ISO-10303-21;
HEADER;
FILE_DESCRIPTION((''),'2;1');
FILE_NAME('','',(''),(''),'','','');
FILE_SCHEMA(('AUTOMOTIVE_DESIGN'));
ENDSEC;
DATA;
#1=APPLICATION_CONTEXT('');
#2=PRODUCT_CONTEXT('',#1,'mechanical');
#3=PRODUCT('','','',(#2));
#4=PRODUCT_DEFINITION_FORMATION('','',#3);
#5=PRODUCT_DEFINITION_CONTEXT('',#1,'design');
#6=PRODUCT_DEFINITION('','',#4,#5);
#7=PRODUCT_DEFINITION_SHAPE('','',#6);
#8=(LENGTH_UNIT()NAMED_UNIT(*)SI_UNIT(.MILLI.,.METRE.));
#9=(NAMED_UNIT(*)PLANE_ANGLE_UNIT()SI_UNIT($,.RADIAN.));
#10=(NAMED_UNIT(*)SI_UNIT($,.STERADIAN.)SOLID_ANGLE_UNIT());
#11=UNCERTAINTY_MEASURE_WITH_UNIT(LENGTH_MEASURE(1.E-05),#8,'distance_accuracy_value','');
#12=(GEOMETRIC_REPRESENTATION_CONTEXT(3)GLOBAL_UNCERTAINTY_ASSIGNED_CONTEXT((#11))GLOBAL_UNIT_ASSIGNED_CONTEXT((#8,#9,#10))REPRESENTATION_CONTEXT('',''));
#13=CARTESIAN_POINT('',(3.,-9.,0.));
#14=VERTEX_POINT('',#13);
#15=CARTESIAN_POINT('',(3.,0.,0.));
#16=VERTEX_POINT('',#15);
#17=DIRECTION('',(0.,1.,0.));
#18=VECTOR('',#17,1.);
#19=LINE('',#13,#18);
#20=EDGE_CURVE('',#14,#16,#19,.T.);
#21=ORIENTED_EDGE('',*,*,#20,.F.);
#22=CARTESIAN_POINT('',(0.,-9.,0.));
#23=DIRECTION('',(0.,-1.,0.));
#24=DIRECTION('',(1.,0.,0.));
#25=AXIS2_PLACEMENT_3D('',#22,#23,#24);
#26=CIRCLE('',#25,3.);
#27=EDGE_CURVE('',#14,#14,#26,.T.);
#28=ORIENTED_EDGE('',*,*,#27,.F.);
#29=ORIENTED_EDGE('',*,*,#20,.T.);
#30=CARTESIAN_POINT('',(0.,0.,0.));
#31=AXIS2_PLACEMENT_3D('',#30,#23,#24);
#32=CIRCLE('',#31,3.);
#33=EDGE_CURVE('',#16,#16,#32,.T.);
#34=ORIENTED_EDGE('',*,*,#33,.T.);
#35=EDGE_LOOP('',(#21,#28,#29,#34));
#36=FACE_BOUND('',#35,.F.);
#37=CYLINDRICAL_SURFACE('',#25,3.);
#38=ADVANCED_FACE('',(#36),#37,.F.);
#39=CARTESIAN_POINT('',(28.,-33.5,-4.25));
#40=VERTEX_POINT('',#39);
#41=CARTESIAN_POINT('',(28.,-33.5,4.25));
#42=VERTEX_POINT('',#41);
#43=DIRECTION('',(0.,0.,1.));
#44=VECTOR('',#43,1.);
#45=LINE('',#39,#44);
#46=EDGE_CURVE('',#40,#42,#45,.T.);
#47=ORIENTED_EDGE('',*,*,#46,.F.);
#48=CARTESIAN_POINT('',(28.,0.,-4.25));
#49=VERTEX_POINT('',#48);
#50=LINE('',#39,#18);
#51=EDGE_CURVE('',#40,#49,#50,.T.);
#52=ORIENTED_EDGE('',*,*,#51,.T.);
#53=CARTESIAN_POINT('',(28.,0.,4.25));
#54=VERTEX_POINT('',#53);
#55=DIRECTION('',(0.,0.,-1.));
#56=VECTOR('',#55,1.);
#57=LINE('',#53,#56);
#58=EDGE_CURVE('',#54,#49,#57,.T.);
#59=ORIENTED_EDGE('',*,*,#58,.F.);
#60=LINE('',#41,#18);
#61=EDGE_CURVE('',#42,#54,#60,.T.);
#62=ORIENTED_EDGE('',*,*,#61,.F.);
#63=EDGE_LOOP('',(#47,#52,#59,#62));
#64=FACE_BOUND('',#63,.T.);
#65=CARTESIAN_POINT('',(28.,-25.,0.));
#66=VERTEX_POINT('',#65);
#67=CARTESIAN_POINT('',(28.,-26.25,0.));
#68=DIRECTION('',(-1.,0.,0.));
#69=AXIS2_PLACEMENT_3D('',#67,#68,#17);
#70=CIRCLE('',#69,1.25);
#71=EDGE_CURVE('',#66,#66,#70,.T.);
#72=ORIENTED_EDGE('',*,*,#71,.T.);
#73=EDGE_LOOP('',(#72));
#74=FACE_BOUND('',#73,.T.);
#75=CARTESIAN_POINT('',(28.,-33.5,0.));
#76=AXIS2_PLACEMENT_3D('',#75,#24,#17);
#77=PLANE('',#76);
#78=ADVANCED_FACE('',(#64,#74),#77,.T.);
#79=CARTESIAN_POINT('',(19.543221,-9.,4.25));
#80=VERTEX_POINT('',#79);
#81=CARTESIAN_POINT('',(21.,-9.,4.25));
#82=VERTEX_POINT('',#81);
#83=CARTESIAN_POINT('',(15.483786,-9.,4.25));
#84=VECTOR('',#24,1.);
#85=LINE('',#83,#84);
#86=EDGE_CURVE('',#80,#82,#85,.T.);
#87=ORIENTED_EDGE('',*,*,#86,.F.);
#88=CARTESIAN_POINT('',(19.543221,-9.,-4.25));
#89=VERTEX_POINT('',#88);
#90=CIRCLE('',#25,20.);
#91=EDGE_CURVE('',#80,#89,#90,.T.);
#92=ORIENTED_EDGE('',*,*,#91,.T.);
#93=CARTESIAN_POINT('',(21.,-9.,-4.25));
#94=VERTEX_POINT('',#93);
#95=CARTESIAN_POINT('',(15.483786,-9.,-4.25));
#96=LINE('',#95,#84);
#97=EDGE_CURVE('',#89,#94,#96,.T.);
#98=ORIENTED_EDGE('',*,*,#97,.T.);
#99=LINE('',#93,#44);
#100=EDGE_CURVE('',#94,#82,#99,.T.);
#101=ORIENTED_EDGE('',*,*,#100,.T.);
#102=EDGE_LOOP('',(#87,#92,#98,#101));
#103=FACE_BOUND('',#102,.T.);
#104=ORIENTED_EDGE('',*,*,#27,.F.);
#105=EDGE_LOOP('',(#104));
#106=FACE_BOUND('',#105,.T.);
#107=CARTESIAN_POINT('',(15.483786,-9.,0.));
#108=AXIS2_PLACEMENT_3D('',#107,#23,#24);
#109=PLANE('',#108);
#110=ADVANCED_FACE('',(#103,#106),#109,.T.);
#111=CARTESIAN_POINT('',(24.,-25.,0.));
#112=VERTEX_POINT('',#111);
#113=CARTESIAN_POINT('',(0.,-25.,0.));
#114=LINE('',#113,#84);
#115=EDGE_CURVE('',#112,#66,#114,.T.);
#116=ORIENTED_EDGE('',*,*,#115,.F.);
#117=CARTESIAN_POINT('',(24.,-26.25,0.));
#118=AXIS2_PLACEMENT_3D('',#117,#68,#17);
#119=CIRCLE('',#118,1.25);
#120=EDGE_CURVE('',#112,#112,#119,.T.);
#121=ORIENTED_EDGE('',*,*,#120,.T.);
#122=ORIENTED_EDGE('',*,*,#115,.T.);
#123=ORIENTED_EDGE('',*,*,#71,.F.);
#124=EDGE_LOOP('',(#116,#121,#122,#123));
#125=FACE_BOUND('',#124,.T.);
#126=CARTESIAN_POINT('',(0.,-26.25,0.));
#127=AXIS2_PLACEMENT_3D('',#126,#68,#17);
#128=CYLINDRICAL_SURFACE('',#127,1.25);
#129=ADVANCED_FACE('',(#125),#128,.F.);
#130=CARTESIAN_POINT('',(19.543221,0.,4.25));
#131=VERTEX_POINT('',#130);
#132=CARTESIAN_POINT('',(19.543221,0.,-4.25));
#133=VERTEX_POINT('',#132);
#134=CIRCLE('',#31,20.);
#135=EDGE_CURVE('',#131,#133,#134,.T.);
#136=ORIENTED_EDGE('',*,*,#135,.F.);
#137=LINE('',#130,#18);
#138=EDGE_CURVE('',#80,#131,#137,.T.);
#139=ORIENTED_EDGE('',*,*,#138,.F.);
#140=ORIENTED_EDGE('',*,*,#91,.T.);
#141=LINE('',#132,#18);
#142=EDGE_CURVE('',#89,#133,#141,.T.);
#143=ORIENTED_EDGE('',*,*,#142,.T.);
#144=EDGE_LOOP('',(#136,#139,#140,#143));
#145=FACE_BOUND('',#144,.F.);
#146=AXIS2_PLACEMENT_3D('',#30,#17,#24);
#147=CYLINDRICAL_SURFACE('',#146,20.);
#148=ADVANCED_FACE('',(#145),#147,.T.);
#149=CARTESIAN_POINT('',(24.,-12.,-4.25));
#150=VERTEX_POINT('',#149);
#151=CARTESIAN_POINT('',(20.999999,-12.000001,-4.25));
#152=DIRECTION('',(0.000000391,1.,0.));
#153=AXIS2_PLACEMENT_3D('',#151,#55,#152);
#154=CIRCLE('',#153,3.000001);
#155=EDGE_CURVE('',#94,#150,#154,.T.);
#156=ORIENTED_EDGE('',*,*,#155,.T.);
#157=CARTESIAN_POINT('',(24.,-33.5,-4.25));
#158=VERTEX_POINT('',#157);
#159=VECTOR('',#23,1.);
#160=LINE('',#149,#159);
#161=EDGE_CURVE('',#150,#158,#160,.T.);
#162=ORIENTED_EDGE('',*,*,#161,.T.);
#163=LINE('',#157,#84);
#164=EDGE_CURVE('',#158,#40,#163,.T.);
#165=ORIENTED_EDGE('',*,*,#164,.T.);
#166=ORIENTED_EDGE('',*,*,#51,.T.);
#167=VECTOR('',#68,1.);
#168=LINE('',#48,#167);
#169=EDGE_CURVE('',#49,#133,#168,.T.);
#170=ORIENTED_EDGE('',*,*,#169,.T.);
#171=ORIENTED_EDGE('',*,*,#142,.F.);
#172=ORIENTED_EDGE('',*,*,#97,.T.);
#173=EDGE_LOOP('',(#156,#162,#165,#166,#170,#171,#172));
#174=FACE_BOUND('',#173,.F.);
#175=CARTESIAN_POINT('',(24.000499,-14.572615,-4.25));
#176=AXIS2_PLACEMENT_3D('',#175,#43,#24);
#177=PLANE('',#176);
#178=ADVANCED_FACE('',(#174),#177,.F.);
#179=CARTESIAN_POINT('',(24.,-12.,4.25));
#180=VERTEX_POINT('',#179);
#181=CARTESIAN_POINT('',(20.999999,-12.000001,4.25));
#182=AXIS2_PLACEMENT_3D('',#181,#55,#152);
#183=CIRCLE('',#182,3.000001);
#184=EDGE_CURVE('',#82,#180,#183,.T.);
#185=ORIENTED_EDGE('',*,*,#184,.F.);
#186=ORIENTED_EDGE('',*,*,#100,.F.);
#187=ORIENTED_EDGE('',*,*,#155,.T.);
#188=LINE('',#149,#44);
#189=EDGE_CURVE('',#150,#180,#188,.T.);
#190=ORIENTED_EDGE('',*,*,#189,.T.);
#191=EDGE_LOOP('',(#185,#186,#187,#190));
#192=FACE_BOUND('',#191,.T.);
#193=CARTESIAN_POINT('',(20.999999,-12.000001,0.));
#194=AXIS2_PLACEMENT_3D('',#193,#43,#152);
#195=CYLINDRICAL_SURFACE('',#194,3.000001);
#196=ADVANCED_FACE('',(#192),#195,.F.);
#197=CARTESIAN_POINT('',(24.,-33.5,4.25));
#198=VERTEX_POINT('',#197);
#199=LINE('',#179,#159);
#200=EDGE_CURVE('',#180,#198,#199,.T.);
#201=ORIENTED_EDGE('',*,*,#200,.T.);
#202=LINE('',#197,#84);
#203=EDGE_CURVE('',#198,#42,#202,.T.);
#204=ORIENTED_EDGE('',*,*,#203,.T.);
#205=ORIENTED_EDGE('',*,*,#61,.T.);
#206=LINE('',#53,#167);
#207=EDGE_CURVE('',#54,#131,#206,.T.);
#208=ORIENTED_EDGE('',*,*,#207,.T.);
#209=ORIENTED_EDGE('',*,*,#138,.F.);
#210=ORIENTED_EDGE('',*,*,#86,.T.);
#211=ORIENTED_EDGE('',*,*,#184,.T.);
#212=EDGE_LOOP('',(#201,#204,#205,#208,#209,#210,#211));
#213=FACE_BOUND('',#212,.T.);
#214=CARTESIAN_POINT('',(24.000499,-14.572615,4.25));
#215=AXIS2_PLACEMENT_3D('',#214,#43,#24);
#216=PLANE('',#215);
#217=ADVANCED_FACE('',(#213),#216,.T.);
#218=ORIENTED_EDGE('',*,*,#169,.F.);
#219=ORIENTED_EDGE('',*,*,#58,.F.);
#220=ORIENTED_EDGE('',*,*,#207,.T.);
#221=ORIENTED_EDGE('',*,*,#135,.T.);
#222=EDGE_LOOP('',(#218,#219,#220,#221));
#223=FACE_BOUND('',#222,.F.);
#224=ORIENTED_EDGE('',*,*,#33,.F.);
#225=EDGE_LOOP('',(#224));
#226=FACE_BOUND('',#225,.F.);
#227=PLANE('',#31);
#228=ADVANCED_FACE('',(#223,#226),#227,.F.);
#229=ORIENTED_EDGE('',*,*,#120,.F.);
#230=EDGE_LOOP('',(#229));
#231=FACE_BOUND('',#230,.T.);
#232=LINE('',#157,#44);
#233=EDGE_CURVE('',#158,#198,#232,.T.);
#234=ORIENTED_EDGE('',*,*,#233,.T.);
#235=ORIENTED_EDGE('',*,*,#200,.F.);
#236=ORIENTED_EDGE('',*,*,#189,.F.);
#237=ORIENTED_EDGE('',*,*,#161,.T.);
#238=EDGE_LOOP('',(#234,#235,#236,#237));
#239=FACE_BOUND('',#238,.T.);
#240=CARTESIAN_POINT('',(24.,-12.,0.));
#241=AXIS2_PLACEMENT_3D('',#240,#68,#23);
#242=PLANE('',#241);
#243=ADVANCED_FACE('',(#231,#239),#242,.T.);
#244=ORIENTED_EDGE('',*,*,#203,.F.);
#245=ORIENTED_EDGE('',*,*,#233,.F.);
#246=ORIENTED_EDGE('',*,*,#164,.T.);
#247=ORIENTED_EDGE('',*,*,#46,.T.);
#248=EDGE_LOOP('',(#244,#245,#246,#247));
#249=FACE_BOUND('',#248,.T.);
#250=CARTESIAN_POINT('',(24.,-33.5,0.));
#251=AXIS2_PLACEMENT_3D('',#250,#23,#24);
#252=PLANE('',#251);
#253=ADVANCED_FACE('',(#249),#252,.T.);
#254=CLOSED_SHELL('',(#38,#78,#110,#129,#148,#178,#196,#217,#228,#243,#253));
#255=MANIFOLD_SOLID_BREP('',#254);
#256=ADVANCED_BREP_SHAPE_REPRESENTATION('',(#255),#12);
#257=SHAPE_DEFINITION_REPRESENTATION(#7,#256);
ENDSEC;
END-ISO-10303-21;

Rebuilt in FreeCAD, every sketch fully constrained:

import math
import FreeCAD as App
import Part
import Sketcher
Q = App.Units.Quantity

doc = App.newDocument("Part")
body = doc.addObject("PartDesign::Body", "Body")

# Sketch on XZ plane
sketch1 = doc.addObject("Sketcher::SketchObject", "Sketch")
body.addObject(sketch1)
sketch1.AttachmentSupport = (doc.XZ_Plane, [""])
sketch1.MapMode = "FlatFace"
sketch1.addGeometry(Part.Circle(App.Vector(0, 0, 0), App.Vector(0, 0, 1), 20), False)
sketch1.addConstraint(Sketcher.Constraint("Coincident", 0, 3, -1, 1))
sketch1.addConstraint(Sketcher.Constraint("Diameter", 0, Q("40 mm")))
pad1 = doc.addObject("PartDesign::Pad", "Pad")
body.addObject(pad1)
pad1.Profile = sketch1
pad1.Length = 9

# Sketch on XZ plane
sketch2 = doc.addObject("Sketcher::SketchObject", "Sketch001")
body.addObject(sketch2)
sketch2.AttachmentSupport = (doc.XZ_Plane, [""])
sketch2.MapMode = "FlatFace"
sketch2.AttachmentOffset = App.Placement(App.Vector(0, 0, 9), App.Rotation())
sketch2.addGeometry(Part.Circle(App.Vector(0, 0, 0), App.Vector(0, 0, 1), 3), False)
sketch2.addConstraint(Sketcher.Constraint("Coincident", 0, 3, -1, 1))
sketch2.addConstraint(Sketcher.Constraint("Diameter", 0, Q("6 mm")))
pocket1 = doc.addObject("PartDesign::Pocket", "Pocket")
body.addObject(pocket1)
pocket1.Profile = sketch2
pocket1.Type = "ThroughAll"

# Sketch on XY plane
sketch3 = doc.addObject("Sketcher::SketchObject", "Sketch002")
body.addObject(sketch3)
sketch3.AttachmentSupport = (doc.XY_Plane, [""])
sketch3.MapMode = "FlatFace"
sketch3.addGeometry(Part.LineSegment(App.Vector(15.5, -9, 0), App.Vector(21, -9, 0)), False)
sketch3.addGeometry(Part.ArcOfCircle(Part.Circle(App.Vector(21, -12, 0), App.Vector(0, 0, 1), 3), math.radians(0), math.radians(90)), False)
sketch3.addGeometry(Part.LineSegment(App.Vector(24, -12, 0), App.Vector(24, -33.5, 0)), False)
sketch3.addGeometry(Part.LineSegment(App.Vector(24, -33.5, 0), App.Vector(28, -33.5, 0)), False)
sketch3.addGeometry(Part.LineSegment(App.Vector(28, -33.5, 0), App.Vector(28, 0, 0)), False)
sketch3.addGeometry(Part.LineSegment(App.Vector(28, 0, 0), App.Vector(15.5, 0, 0)), False)
sketch3.addGeometry(Part.LineSegment(App.Vector(15.5, 0, 0), App.Vector(15.5, -9, 0)), False)
sketch3.addConstraint(Sketcher.Constraint("Tangent", 0, 2, 1, 2))
sketch3.addConstraint(Sketcher.Constraint("Tangent", 1, 1, 2, 1))
sketch3.addConstraint(Sketcher.Constraint("Coincident", 2, 2, 3, 1))
sketch3.addConstraint(Sketcher.Constraint("Coincident", 3, 2, 4, 1))
sketch3.addConstraint(Sketcher.Constraint("Coincident", 4, 2, 5, 1))
sketch3.addConstraint(Sketcher.Constraint("Coincident", 5, 2, 6, 1))
sketch3.addConstraint(Sketcher.Constraint("Coincident", 6, 2, 0, 1))
sketch3.addConstraint(Sketcher.Constraint("Horizontal", 0))
sketch3.addConstraint(Sketcher.Constraint("Vertical", 2))
sketch3.addConstraint(Sketcher.Constraint("Horizontal", 3))
sketch3.addConstraint(Sketcher.Constraint("Vertical", 4))
sketch3.addConstraint(Sketcher.Constraint("Horizontal", 5))
sketch3.addConstraint(Sketcher.Constraint("Vertical", 6))
sketch3.addConstraint(Sketcher.Constraint("PointOnObject", 4, 2, -1))
sketch3.addConstraint(Sketcher.Constraint("Radius", 1, Q("3.000001 mm")))
sketch3.addConstraint(Sketcher.Constraint("DistanceX", 3, 1, 3, 2, Q("4 mm")))
sketch3.addConstraint(Sketcher.Constraint("DistanceY", 6, 2, 6, 1, Q("9 mm")))
sketch3.addConstraint(Sketcher.Constraint("DistanceY", 2, 2, 2, 1, Q("21.5 mm")))
sketch3.addConstraint(Sketcher.Constraint("DistanceX", -1, 1, 1, 3, Q("20.999999 mm")))
sketch3.addConstraint(Sketcher.Constraint("DistanceX", 0, 1, 0, 2, Q("5.516214 mm")))
pad2 = doc.addObject("PartDesign::Pad", "Pad001")
body.addObject(pad2)
pad2.Profile = sketch3
pad2.Length = 8.5
pad2.Midplane = True

# Sketch on YZ plane
sketch4 = doc.addObject("Sketcher::SketchObject", "Sketch003")
body.addObject(sketch4)
sketch4.AttachmentSupport = (doc.YZ_Plane, [""])
sketch4.MapMode = "FlatFace"
sketch4.addGeometry(Part.Circle(App.Vector(-26.2, 0, 0), App.Vector(0, 0, 1), 1.2), False)
sketch4.addConstraint(Sketcher.Constraint("PointOnObject", 0, 3, -1))
sketch4.addConstraint(Sketcher.Constraint("Diameter", 0, Q("2.5 mm")))
sketch4.addConstraint(Sketcher.Constraint("DistanceX", 0, 3, -1, 1, Q("26.25 mm")))
pocket2 = doc.addObject("PartDesign::Pocket", "Pocket001")
body.addObject(pocket2)
pocket2.Profile = sketch4
pocket2.Type = "ThroughAll"
pocket2.Reversed = True

doc.recompute()
